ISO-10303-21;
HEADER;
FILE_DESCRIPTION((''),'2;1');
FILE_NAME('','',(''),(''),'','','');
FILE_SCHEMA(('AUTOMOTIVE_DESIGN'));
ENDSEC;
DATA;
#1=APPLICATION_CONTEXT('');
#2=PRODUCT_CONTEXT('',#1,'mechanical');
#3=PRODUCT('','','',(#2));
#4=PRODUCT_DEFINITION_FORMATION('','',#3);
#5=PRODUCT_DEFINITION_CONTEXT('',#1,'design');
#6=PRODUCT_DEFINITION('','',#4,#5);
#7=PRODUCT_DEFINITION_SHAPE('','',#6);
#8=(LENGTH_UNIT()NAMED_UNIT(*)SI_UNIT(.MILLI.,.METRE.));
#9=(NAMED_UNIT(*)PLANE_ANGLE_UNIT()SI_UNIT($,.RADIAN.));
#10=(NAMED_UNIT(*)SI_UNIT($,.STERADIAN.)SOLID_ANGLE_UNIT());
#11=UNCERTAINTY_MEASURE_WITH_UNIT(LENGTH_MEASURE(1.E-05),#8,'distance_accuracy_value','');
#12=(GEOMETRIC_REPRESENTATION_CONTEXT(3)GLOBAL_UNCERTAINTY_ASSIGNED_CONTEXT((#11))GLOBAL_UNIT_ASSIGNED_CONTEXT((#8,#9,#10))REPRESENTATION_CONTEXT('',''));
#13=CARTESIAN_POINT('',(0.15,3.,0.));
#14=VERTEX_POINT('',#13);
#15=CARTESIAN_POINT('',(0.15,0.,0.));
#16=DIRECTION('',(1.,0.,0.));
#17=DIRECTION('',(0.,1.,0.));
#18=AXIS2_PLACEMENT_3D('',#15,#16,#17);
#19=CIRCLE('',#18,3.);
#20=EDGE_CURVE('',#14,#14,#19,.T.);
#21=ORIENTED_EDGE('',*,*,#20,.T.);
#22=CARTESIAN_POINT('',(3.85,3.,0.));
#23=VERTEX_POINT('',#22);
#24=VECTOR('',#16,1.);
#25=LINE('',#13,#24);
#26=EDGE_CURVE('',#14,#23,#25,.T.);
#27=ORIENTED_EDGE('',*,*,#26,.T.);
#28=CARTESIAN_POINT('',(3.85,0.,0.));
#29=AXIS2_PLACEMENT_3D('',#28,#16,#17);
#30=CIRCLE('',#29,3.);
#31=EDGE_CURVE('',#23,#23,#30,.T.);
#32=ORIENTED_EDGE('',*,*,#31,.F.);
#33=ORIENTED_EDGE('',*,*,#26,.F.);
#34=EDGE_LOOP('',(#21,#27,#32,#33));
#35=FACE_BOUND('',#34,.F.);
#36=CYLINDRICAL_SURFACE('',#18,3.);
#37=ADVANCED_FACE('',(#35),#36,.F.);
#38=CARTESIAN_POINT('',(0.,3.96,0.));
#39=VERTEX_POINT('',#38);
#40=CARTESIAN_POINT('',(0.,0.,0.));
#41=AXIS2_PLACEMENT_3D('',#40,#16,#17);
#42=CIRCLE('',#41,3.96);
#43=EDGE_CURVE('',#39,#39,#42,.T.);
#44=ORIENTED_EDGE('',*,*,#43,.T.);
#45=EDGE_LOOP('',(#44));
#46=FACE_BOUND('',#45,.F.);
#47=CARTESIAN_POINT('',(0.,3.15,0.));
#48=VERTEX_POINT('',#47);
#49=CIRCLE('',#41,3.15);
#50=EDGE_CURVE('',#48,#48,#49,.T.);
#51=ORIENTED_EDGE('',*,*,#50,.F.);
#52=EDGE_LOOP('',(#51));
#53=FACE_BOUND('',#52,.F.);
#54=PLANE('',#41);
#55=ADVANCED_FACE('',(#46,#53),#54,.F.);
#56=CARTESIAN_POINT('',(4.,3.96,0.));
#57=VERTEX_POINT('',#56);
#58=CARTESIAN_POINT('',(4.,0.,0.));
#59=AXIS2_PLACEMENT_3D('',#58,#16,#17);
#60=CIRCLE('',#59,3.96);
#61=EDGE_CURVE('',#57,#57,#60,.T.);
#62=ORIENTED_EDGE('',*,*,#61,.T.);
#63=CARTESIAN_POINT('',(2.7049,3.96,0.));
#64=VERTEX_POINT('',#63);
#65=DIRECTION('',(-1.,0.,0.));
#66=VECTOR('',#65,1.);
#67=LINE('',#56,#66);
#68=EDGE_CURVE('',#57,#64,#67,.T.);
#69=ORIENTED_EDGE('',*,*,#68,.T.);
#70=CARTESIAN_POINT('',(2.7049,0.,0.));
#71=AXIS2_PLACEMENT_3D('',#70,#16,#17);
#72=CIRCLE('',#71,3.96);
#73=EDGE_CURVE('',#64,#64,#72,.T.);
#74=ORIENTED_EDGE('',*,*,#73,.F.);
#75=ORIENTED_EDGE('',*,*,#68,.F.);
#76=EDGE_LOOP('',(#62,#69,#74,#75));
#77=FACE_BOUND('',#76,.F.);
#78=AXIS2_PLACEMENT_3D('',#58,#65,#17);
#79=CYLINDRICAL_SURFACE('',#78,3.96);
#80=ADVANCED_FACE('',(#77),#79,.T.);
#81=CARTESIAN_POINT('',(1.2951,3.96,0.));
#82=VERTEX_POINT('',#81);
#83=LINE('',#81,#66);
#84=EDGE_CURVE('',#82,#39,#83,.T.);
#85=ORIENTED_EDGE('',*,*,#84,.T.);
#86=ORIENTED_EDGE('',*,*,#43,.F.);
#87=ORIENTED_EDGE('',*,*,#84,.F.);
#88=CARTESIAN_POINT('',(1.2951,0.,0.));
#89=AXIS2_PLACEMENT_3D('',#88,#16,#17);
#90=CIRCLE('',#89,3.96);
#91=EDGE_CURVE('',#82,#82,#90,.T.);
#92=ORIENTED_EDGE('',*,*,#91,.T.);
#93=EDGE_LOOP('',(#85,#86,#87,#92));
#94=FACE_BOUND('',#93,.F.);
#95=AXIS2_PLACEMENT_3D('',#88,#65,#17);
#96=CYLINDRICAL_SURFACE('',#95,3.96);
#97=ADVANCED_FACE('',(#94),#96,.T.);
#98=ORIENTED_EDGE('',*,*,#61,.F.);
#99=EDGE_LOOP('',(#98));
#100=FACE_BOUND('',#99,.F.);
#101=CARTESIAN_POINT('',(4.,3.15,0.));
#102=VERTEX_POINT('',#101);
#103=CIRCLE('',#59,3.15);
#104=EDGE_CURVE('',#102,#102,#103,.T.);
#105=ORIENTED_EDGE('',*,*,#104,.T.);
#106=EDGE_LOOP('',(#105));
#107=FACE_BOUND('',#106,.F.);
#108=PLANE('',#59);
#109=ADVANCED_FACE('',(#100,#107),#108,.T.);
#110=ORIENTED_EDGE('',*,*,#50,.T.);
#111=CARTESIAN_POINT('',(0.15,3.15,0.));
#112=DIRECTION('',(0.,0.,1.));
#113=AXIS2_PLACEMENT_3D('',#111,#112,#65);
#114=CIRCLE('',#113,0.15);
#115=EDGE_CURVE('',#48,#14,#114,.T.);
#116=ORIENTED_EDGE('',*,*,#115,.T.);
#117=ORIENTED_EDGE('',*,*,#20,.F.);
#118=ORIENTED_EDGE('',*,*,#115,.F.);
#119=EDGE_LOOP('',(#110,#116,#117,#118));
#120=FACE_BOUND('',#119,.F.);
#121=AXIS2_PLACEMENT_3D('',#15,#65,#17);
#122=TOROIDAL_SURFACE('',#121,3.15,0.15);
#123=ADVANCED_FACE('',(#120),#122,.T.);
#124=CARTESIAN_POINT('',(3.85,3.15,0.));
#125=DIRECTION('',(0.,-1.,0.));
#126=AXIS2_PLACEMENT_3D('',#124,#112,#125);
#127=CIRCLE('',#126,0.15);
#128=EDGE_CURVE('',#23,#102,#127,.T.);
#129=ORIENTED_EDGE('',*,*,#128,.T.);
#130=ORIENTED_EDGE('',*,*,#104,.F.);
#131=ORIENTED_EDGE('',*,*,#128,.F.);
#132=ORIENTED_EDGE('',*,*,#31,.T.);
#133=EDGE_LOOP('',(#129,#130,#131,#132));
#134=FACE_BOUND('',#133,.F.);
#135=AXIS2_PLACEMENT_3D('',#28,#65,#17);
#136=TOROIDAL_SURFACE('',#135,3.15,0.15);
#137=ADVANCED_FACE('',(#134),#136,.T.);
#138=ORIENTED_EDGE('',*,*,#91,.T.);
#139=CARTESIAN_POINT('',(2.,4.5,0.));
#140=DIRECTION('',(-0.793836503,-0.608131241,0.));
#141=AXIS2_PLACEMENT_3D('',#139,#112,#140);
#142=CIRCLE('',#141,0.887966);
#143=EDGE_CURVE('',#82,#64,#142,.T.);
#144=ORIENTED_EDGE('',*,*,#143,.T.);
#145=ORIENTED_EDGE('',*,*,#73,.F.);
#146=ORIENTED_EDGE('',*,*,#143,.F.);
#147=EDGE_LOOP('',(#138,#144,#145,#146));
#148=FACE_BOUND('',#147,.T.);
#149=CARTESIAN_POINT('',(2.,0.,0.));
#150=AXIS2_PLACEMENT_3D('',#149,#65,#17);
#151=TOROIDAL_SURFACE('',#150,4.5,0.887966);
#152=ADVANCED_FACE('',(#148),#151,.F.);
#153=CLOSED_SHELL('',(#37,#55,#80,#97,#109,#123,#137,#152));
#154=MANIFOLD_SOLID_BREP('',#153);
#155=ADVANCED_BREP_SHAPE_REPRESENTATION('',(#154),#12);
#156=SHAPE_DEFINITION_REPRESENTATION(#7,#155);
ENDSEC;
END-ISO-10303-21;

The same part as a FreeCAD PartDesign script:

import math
import FreeCAD as App
import Part
import Sketcher
from FreeCAD import Vector

doc = App.newDocument("Part")
body = doc.addObject("PartDesign::Body", "Body")

# Sketch on XY plane
sketch1 = body.newObject("Sketcher::SketchObject", "Sketch")
sketch1.AttachmentSupport = (doc.getObject("XY_Plane"), [""])
sketch1.MapMode = "FlatFace"
sketch1.addGeometry(Part.LineSegment(Vector(0, 3.96, 0), Vector(0, 3.15, 0)), False)
sketch1.addGeometry(Part.ArcOfCircle(Part.Circle(Vector(0.15, 3.15, 0), Vector(0, 0, 1), 0.15), math.radians(180), math.radians(270)), False)
sketch1.addGeometry(Part.LineSegment(Vector(0.15, 3, 0), Vector(3.85, 3, 0)), False)
sketch1.addGeometry(Part.ArcOfCircle(Part.Circle(Vector(3.85, 3.15, 0), Vector(0, 0, 1), 0.15), math.radians(-90), math.radians(0)), False)
sketch1.addGeometry(Part.LineSegment(Vector(4, 3.15, 0), Vector(4, 3.96, 0)), False)
sketch1.addGeometry(Part.LineSegment(Vector(4, 3.96, 0), Vector(2.7, 3.96, 0)), False)
sketch1.addGeometry(Part.ArcOfCircle(Part.Circle(Vector(2, 4.5, 0), Vector(0, 0, 1), 0.89), math.radians(-143), math.radians(-37)), False)
sketch1.addGeometry(Part.LineSegment(Vector(1.3, 3.96, 0), Vector(0, 3.96, 0)), False)
sketch1.addConstraint(Sketcher.Constraint("Tangent", 0, 2, 1, 1))
sketch1.addConstraint(Sketcher.Constraint("Tangent", 1, 2, 2, 1))
sketch1.addConstraint(Sketcher.Constraint("Tangent", 2, 2, 3, 1))
sketch1.addConstraint(Sketcher.Constraint("Tangent", 3, 2, 4, 1))
sketch1.addConstraint(Sketcher.Constraint("Coincident", 4, 2, 5, 1))
sketch1.addConstraint(Sketcher.Constraint("Coincident", 5, 2, 6, 2))
sketch1.addConstraint(Sketcher.Constraint("Coincident", 6, 1, 7, 1))
sketch1.addConstraint(Sketcher.Constraint("Coincident", 7, 2, 0, 1))
sketch1.addConstraint(Sketcher.Constraint("Vertical", 0))
sketch1.addConstraint(Sketcher.Constraint("Horizontal", 2))
sketch1.addConstraint(Sketcher.Constraint("Vertical", 4))
sketch1.addConstraint(Sketcher.Constraint("Horizontal", 5))
sketch1.addConstraint(Sketcher.Constraint("Horizontal", 7))
sketch1.addConstraint(Sketcher.Constraint("Equal", 1, 3))
sketch1.addConstraint(Sketcher.Constraint("PointOnObject", 0, 2, -2))
sketch1.addConstraint(Sketcher.Constraint("Horizontal", 5, 2, 6, 1))
sketch1.addConstraint(Sketcher.Constraint("Equal", 5, 7))
sketch1.addConstraint(Sketcher.Constraint("Radius", 1, 0.15))
sketch1.addConstraint(Sketcher.Constraint("DistanceX", 2, 1, 2, 2, 3.7))
sketch1.addConstraint(Sketcher.Constraint("DistanceY", -1, 1, 1, 2, 3.0))
sketch1.addConstraint(Sketcher.Constraint("Radius", 6, 0.888))
sketch1.addConstraint(Sketcher.Constraint("DistanceY", 0, 2, 0, 1, 0.81))
sketch1.addConstraint(Sketcher.Constraint("DistanceY", -1, 1, 6, 3, 4.5))
revolution = body.newObject("PartDesign::Revolution", "Revolution")
revolution.Profile = sketch1
revolution.ReferenceAxis = (sketch1, ["H_Axis"])
revolution.Angle = 360

doc.recompute()
